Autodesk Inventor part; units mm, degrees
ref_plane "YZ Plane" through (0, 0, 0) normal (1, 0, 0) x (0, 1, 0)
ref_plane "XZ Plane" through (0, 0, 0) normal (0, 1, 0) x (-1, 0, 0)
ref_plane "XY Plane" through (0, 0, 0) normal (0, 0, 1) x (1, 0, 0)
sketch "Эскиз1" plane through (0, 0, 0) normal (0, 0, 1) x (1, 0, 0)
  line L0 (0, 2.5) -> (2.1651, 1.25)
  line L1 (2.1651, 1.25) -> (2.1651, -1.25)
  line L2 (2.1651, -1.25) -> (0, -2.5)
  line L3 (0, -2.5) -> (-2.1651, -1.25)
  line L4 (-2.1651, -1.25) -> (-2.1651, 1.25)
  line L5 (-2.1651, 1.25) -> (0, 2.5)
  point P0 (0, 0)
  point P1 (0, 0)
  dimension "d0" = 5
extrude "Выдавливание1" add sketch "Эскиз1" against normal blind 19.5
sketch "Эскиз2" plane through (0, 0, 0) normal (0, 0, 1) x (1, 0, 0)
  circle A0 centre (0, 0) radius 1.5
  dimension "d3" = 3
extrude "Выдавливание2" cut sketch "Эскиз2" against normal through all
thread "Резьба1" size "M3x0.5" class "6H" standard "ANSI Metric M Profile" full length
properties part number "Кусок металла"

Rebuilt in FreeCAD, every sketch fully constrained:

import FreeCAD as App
import Part
import Sketcher
from FreeCAD import Vector
Q = App.Units.Quantity

doc = App.newDocument("Part")
body = doc.addObject("PartDesign::Body", "Body")

# Sketch on XY plane
sketch1 = body.newObject("Sketcher::SketchObject", "Sketch")
sketch1.AttachmentSupport = (doc.getObject("XY_Plane"), [""])
sketch1.MapMode = "FlatFace"
sketch1.addGeometry([
    Part.LineSegment(Vector(2.1651, 1.25, 0), Vector(0, 2.5, 0)),  # 0
    Part.LineSegment(Vector(0, 2.5, 0), Vector(-2.1651, 1.25, 0)),  # 1
    Part.LineSegment(Vector(-2.1651, 1.25, 0), Vector(-2.1651, -1.25, 0)),  # 2
    Part.LineSegment(Vector(-2.1651, -1.25, 0), Vector(0, -2.5, 0)),  # 3
    Part.LineSegment(Vector(0, -2.5, 0), Vector(2.1651, -1.25, 0)),  # 4
    Part.LineSegment(Vector(2.1651, -1.25, 0), Vector(2.1651, 1.25, 0)),  # 5
], False)
sketch1.addConstraint([
    Sketcher.Constraint("Coincident", 0, 2, 1, 1),
    Sketcher.Constraint("Coincident", 1, 2, 2, 1),
    Sketcher.Constraint("Coincident", 2, 2, 3, 1),
    Sketcher.Constraint("Coincident", 3, 2, 4, 1),
    Sketcher.Constraint("Coincident", 4, 2, 5, 1),
    Sketcher.Constraint("Coincident", 5, 2, 0, 1),
    Sketcher.Constraint("Vertical", 2),
    Sketcher.Constraint("Vertical", 5),
    Sketcher.Constraint("Symmetric", 0, 2, 3, 2, -1, 1),
    Sketcher.Constraint("Symmetric", 1, 2, 4, 2, -1, 1),
    Sketcher.Constraint("PointOnObject", 0, 2, -2),
    Sketcher.Constraint("Parallel", 0, 3),
    Sketcher.Constraint("Horizontal", 2, 2, 4, 2),
    Sketcher.Constraint("DistanceY", 3, 2, 0, 2, 5.0),
    Sketcher.Constraint("Angle", 0, Q("150.0004 deg")),
    Sketcher.Constraint("DistanceY", 2, 2, 2, 1, 2.5),
])
pad1 = body.newObject("PartDesign::Pad", "Pad")
pad1.Profile = sketch1
pad1.Length = 19.5
pad1.Reversed = True

# Sketch on XY plane
sketch2 = body.newObject("Sketcher::SketchObject", "Sketch001")
sketch2.AttachmentSupport = (doc.getObject("XY_Plane"), [""])
sketch2.MapMode = "FlatFace"
sketch2.addGeometry(Part.Circle(Vector(0, 0, 0), Vector(0, 0, 1), 1.5), False)
sketch2.addConstraint([
    Sketcher.Constraint("Coincident", 0, 3, -1, 1),
    Sketcher.Constraint("Diameter", 0, 3.0),
])
pocket1 = body.newObject("PartDesign::Pocket", "Pocket")
pocket1.Profile = sketch2
pocket1.Type = "ThroughAll"

doc.recompute()
